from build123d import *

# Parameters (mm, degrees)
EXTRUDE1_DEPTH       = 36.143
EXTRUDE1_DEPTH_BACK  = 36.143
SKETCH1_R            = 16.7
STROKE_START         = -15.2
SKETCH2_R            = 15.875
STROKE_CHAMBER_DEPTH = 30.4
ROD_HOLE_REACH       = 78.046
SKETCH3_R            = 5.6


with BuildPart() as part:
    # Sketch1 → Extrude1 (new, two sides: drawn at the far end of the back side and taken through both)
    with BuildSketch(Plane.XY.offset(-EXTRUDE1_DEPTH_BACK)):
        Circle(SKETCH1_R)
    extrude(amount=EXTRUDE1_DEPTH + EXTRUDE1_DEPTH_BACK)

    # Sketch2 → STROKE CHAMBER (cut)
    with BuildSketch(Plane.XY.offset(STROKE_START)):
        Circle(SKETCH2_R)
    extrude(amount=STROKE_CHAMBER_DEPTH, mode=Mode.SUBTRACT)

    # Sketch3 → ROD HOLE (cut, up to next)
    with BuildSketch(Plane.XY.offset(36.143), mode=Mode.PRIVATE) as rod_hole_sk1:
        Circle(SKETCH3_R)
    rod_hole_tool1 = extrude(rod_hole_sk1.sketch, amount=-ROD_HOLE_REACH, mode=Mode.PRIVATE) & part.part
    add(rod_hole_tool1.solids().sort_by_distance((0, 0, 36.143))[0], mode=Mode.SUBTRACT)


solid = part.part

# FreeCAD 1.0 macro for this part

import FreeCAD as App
import Part
import Sketcher

V = App.Vector

doc = App.newDocument("Part")
params = doc.addObject("Spreadsheet::Sheet", "Params")
for row, (alias, value) in enumerate([
    ("sketch1_diameter", "33.4 mm"),
    ("pad1_length", "36.143 mm"),
    ("pad1_length2", "36.143 mm"),
    ("sketch2_diameter", "31.75 mm"),
    ("pocket1_length", "30.4 mm"),
    ("sketch3_diameter", "11.2 mm"),
], start=1):
    params.set(f"A{row}", alias)
    params.set(f"B{row}", "=" + value)
    params.setAlias(f"B{row}", alias)

body = doc.addObject("PartDesign::Body", "Body")

# Sketch on XY plane
sketch1 = body.newObject("Sketcher::SketchObject", "Sketch")
sketch1.AttachmentSupport = (doc.getObject("XY_Plane"), [""])
sketch1.MapMode = "FlatFace"
sketch1.addGeometry(Part.Circle(V(0, 0, 0), V(0, 0, 1), 16.7), False)
sketch1.addConstraint(Sketcher.Constraint("Coincident", 0, 3, -1, 1))
sketch1.addConstraint(Sketcher.Constraint("Diameter", 0, 33.4))
sketch1.setExpression("Constraints[1]", "Params.sketch1_diameter")
pad1 = body.newObject("PartDesign::Pad", "Pad")
pad1.Profile = sketch1
pad1.Type = "TwoLengths"
pad1.setExpression("Length", "Params.pad1_length")
pad1.setExpression("Length2", "Params.pad1_length2")

# Sketch on XY plane
sketch2 = body.newObject("Sketcher::SketchObject", "Sketch001")
sketch2.AttachmentSupport = (doc.getObject("XY_Plane"), [""])
sketch2.MapMode = "FlatFace"
sketch2.AttachmentOffset = App.Placement(V(0, 0, -15.2), App.Rotation())
sketch2.addGeometry(Part.Circle(V(0, 0, 0), V(0, 0, 1), 15.875), False)
sketch2.addConstraint(Sketcher.Constraint("Coincident", 0, 3, -1, 1))
sketch2.addConstraint(Sketcher.Constraint("Diameter", 0, 31.75))
sketch2.setExpression("Constraints[1]", "Params.sketch2_diameter")
pocket1 = body.newObject("PartDesign::Pocket", "Pocket")
pocket1.Profile = sketch2
pocket1.setExpression("Length", "Params.pocket1_length")
pocket1.Reversed = True

# Sketch on XY plane
sketch3 = body.newObject("Sketcher::SketchObject", "Sketch002")
sketch3.AttachmentSupport = (doc.getObject("XY_Plane"), [""])
sketch3.MapMode = "FlatFace"
sketch3.AttachmentOffset = App.Placement(V(0, 0, 36.143), App.Rotation())
sketch3.addGeometry(Part.Circle(V(0, 0, 0), V(0, 0, 1), 5.6), False)
sketch3.addConstraint(Sketcher.Constraint("Coincident", 0, 3, -1, 1))
sketch3.addConstraint(Sketcher.Constraint("Diameter", 0, 11.2))
sketch3.setExpression("Constraints[1]", "Params.sketch3_diameter")
pocket2 = body.newObject("PartDesign::Pocket", "Pocket001")
pocket2.Profile = sketch3
pocket2.Type = "UpToFirst"

doc.recompute()
